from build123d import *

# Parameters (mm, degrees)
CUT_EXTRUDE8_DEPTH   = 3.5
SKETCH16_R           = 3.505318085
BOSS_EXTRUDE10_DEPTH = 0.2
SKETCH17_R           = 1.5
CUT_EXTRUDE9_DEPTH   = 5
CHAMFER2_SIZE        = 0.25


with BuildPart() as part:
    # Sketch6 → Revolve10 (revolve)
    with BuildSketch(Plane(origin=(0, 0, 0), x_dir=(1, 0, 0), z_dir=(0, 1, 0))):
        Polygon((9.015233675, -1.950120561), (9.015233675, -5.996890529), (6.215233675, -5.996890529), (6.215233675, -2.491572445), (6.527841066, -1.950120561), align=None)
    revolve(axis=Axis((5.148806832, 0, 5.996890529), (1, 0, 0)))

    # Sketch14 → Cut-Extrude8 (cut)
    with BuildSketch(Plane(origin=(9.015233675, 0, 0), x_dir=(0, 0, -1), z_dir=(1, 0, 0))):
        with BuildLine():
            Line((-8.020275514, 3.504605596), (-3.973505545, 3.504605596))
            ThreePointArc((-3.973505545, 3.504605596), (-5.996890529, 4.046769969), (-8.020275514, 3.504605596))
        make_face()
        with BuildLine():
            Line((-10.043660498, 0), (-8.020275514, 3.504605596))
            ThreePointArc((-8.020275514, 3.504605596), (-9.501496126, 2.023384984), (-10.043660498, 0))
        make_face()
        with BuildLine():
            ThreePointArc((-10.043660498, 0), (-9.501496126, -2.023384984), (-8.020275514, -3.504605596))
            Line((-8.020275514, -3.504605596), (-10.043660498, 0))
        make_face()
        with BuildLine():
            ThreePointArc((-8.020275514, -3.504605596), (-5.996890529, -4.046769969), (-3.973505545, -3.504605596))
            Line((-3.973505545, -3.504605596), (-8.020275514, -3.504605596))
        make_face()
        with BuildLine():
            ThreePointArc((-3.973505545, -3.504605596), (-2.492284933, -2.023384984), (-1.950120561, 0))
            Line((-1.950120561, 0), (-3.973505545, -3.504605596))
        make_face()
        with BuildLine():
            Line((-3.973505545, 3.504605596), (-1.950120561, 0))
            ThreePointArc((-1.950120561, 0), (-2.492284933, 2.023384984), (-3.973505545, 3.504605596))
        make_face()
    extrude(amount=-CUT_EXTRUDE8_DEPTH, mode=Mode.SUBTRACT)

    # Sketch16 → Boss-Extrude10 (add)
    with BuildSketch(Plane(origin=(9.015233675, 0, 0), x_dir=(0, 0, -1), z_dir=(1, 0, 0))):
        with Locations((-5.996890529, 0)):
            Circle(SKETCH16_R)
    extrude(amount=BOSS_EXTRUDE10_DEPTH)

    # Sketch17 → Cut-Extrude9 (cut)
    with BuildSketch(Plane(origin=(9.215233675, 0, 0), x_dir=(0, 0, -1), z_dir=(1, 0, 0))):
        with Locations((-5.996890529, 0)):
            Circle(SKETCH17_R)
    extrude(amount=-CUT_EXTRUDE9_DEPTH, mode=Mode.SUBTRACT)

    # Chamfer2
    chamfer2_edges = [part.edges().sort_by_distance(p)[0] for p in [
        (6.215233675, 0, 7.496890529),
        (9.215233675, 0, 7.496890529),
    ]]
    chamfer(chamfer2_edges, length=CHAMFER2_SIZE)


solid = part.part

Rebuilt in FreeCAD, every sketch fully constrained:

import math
import FreeCAD as App
import Part
import Sketcher
from FreeCAD import Vector
Q = App.Units.Quantity


def edges_at(feature, points):
    """Names of the edges that pass closest to the given points."""
    edges = feature.Shape.Edges
    near = lambda p: min(range(len(edges)), key=lambda i: edges[i].distToShape(Part.Vertex(*p))[0])
    return sorted({f"Edge{near(p) + 1}" for p in points})

doc = App.newDocument("Part")
body = doc.addObject("PartDesign::Body", "Body")

sketch1 = body.newObject("Sketcher::SketchObject", "Sketch")
sketch1.AttachmentSupport = (doc.getObject("XZ_Plane"), [""])
sketch1.MapMode = "FlatFace"
sketch1.addGeometry([
    Part.LineSegment(Vector(9, 6, 0), Vector(9, 2, 0)),
    Part.LineSegment(Vector(9, 2, 0), Vector(6.5, 2, 0)),
    Part.LineSegment(Vector(6.5, 2, 0), Vector(6.2, 2.5, 0)),
    Part.LineSegment(Vector(6.2, 2.5, 0), Vector(6.2, 6, 0)),
    Part.LineSegment(Vector(6.2, 6, 0), Vector(9, 6, 0)),
], False)
sketch1.addGeometry(Part.LineSegment(Vector(6.2, 6, 0), Vector(9, 6, 0)), True)
sketch1.addConstraint([
    Sketcher.Constraint("Coincident", 0, 2, 1, 1),
    Sketcher.Constraint("Coincident", 1, 2, 2, 1),
    Sketcher.Constraint("Coincident", 2, 2, 3, 1),
    Sketcher.Constraint("Coincident", 3, 2, 4, 1),
    Sketcher.Constraint("Coincident", 4, 2, 0, 1),
    Sketcher.Constraint("Vertical", 0),
    Sketcher.Constraint("Horizontal", 1),
    Sketcher.Constraint("Vertical", 3),
    Sketcher.Constraint("Horizontal", 4),
    Sketcher.Constraint("Horizontal", 5),
    Sketcher.Constraint("Coincident", 5, 1, 3, 2),
    Sketcher.Constraint("Vertical", 0, 2, 5, 2),
    Sketcher.Constraint("Angle", 2, Q("120 deg")),
    Sketcher.Constraint("DistanceX", 4, 1, 4, 2, 2.8),
    Sketcher.Constraint("DistanceY", 0, 2, 0, 1, 4.04677),
    Sketcher.Constraint("DistanceY", 3, 1, 3, 2, 3.505318),
    Sketcher.Constraint("DistanceY", -1, 1, 0, 2, 1.950121),
    Sketcher.Constraint("DistanceX", -1, 1, 1, 2, 6.527841),
])
revolution = body.newObject("PartDesign::Revolution", "Revolution")
revolution.Profile = sketch1
revolution.ReferenceAxis = (sketch1, ["Axis0"])
revolution.Angle = 360

sketch2 = body.newObject("Sketcher::SketchObject", "Sketch001")
sketch2.AttachmentSupport = (doc.getObject("YZ_Plane"), [""])
sketch2.MapMode = "FlatFace"
sketch2.AttachmentOffset = App.Placement(Vector(0, 0, 9.015234), App.Rotation())
sketch2.addGeometry([
    Part.LineSegment(Vector(3.5, 8, 0), Vector(3.5, 4, 0)),
    Part.ArcOfCircle(Part.Circle(Vector(0, 6, 0), Vector(0, 0, 1), 4), math.radians(-30), math.radians(30)),
    Part.LineSegment(Vector(0, 10, 0), Vector(3.5, 8, 0)),
    Part.ArcOfCircle(Part.Circle(Vector(0, 6, 0), Vector(0, 0, 1), 4), math.radians(30), math.radians(90)),
    Part.ArcOfCircle(Part.Circle(Vector(0, 6, 0), Vector(0, 0, 1), 4), math.radians(90), math.radians(150)),
    Part.LineSegment(Vector(-3.5, 8, 0), Vector(0, 10, 0)),
    Part.ArcOfCircle(Part.Circle(Vector(0, 6, 0), Vector(0, 0, 1), 4), math.radians(150), math.radians(210)),
    Part.LineSegment(Vector(-3.5, 4, 0), Vector(-3.5, 8, 0)),
    Part.ArcOfCircle(Part.Circle(Vector(0, 6, 0), Vector(0, 0, 1), 4), math.radians(-150), math.radians(-90)),
    Part.LineSegment(Vector(0, 2, 0), Vector(-3.5, 4, 0)),
    Part.LineSegment(Vector(3.5, 4, 0), Vector(0, 2, 0)),
    Part.ArcOfCircle(Part.Circle(Vector(0, 6, 0), Vector(0, 0, 1), 4), math.radians(-90), math.radians(-30)),
], False)
sketch2.addConstraint([
    Sketcher.Constraint("Coincident", 0, 1, 1, 2),
    Sketcher.Constraint("Coincident", 1, 1, 0, 2),
    Sketcher.Constraint("Coincident", 2, 1, 3, 2),
    Sketcher.Constraint("Coincident", 3, 1, 2, 2),
    Sketcher.Constraint("Coincident", 4, 1, 5, 2),
    Sketcher.Constraint("Coincident", 5, 1, 4, 2),
    Sketcher.Constraint("Coincident", 6, 1, 7, 2),
    Sketcher.Constraint("Coincident", 7, 1, 6, 2),
    Sketcher.Constraint("Coincident", 8, 1, 9, 2),
    Sketcher.Constraint("Coincident", 9, 1, 8, 2),
    Sketcher.Constraint("Coincident", 10, 1, 11, 2),
    Sketcher.Constraint("Coincident", 11, 1, 10, 2),
    Sketcher.Constraint("Vertical", 0),
    Sketcher.Constraint("Vertical", 7),
    Sketcher.Constraint("Coincident", 3, 3, 1, 3),
    Sketcher.Constraint("Coincident", 4, 3, 1, 3),
    Sketcher.Constraint("Coincident", 6, 3, 1, 3),
    Sketcher.Constraint("Coincident", 8, 3, 1, 3),
    Sketcher.Constraint("Coincident", 11, 3, 1, 3),
    Sketcher.Constraint("Coincident", 3, 1, 0, 1),
    Sketcher.Constraint("Coincident", 4, 1, 2, 1),
    Sketcher.Constraint("Coincident", 6, 1, 5, 1),
    Sketcher.Constraint("Coincident", 8, 1, 7, 1),
    Sketcher.Constraint("Coincident", 10, 1, 1, 1),
    Sketcher.Constraint("Symmetric", 0, 1, 5, 1, -2),
    Sketcher.Constraint("PointOnObject", 2, 1, -2),
    Sketcher.Constraint("PointOnObject", 9, 1, -2),
    Sketcher.Constraint("PointOnObject", 11, 1, -2),
    Sketcher.Constraint("Angle", 2, Q("-30 deg")),
    Sketcher.Constraint("Radius", 1, 4.04677),
    Sketcher.Constraint("DistanceY", -1, 1, 1, 3, 5.996891),
])
pocket1 = body.newObject("PartDesign::Pocket", "Pocket")
pocket1.Profile = sketch2
pocket1.Length = 3.5

sketch3 = body.newObject("Sketcher::SketchObject", "Sketch002")
sketch3.AttachmentSupport = (doc.getObject("YZ_Plane"), [""])
sketch3.MapMode = "FlatFace"
sketch3.AttachmentOffset = App.Placement(Vector(0, 0, 9.015234), App.Rotation())
sketch3.addGeometry(Part.Circle(Vector(0, 6, 0), Vector(0, 0, 1), 3.5), False)
sketch3.addConstraint([
    Sketcher.Constraint("PointOnObject", 0, 3, -2),
    Sketcher.Constraint("Diameter", 0, 7.010636),
    Sketcher.Constraint("DistanceY", -1, 1, 0, 3, 5.996891),
])
pad1 = body.newObject("PartDesign::Pad", "Pad")
pad1.Profile = sketch3
pad1.Length = 0.2

sketch4 = body.newObject("Sketcher::SketchObject", "Sketch003")
sketch4.AttachmentSupport = (doc.getObject("YZ_Plane"), [""])
sketch4.MapMode = "FlatFace"
sketch4.AttachmentOffset = App.Placement(Vector(0, 0, 9.215234), App.Rotation())
sketch4.addGeometry(Part.Circle(Vector(0, 6, 0), Vector(0, 0, 1), 1.5), False)
sketch4.addConstraint([
    Sketcher.Constraint("PointOnObject", 0, 3, -2),
    Sketcher.Constraint("Diameter", 0, 3.0),
    Sketcher.Constraint("DistanceY", -1, 1, 0, 3, 5.996891),
])
pocket2 = body.newObject("PartDesign::Pocket", "Pocket001")
pocket2.Profile = sketch4
pocket2.Length = 5
doc.recompute()

chamfer = body.newObject("PartDesign::Chamfer", "Chamfer")
chamfer.Base = (pocket2, edges_at(pocket2, [(6.215, 0, 7.497), (9.215, 0, 7.497)]))
chamfer.Size = 0.25

doc.recompute()
